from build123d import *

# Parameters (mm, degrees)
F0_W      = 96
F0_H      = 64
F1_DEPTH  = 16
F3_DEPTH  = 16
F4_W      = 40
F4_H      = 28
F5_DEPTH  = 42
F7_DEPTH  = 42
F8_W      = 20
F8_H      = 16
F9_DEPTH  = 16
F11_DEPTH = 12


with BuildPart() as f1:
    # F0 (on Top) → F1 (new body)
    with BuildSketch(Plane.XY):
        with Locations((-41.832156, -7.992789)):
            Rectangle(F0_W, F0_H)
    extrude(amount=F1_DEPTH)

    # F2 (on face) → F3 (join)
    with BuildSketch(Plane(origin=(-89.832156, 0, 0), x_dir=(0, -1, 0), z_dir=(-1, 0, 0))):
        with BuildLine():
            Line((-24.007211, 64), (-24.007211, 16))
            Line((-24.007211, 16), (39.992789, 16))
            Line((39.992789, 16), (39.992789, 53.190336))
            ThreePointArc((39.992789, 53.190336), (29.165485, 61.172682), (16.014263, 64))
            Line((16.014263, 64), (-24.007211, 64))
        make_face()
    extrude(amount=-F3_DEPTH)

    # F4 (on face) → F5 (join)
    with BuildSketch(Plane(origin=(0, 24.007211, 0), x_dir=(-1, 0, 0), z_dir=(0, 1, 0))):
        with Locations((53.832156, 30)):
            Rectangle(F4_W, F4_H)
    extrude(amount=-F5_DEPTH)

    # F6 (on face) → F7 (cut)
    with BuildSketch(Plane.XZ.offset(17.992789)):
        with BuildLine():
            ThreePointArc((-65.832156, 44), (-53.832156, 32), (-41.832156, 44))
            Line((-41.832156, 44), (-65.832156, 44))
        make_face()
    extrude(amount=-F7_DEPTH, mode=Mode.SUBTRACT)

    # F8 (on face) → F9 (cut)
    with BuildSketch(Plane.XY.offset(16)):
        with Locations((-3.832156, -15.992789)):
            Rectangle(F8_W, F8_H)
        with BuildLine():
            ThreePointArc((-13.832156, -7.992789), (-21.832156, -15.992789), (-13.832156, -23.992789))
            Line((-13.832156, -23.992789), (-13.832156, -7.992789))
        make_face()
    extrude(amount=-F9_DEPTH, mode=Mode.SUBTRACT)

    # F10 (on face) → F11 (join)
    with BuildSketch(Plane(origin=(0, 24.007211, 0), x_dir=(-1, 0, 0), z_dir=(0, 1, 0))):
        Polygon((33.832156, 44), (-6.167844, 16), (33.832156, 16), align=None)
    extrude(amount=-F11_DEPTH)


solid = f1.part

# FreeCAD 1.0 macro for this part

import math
import FreeCAD as App
import Part
import Sketcher
from FreeCAD import Vector


def add_polygon(sketch, points):
    """Adds a closed chain of lines whose ends are joined by coincident constraints."""
    first, n = sketch.GeometryCount, len(points)
    for a, b in zip(points, points[1:] + points[:1]):
        sketch.addGeometry(Part.LineSegment(App.Vector(*a, 0), App.Vector(*b, 0)), False)
    for i in range(n):
        sketch.addConstraint(Sketcher.Constraint("Coincident", first + i, 2, first + (i + 1) % n, 1))

doc = App.newDocument("Part")
body = doc.addObject("PartDesign::Body", "Body")

sketch1 = body.newObject("Sketcher::SketchObject", "Sketch")
sketch1.AttachmentSupport = (doc.getObject("XY_Plane"), [""])
sketch1.MapMode = "FlatFace"
add_polygon(sketch1, [(-89.832156, 24.007211), (-89.832156, -39.992789), (6.167844, -39.992789), (6.167844, 24.007211)])
sketch1.addConstraint([
    Sketcher.Constraint("Vertical", 0),
    Sketcher.Constraint("Horizontal", 1),
    Sketcher.Constraint("Vertical", 2),
    Sketcher.Constraint("Horizontal", 3),
    Sketcher.Constraint("DistanceX", 1, 1, 1, 2, 96.0),
    Sketcher.Constraint("DistanceY", 0, 2, 0, 1, 64.0),
    Sketcher.Constraint("DistanceY", 0, 2, -1, 1, 39.992789),
    Sketcher.Constraint("DistanceX", 0, 2, -1, 1, 89.832156),
])
pad1 = body.newObject("PartDesign::Pad", "Pad")
pad1.Profile = sketch1
pad1.Length = 16

sketch2 = body.newObject("Sketcher::SketchObject", "Sketch001")
sketch2.AttachmentSupport = (doc.getObject("YZ_Plane"), [""])
sketch2.MapMode = "FlatFace"
sketch2.AttachmentOffset = App.Placement(Vector(0, 0, -89.832156), App.Rotation())
sketch2.addGeometry([
    Part.LineSegment(Vector(24.007211, 64, 0), Vector(24.007211, 16, 0)),
    Part.LineSegment(Vector(24.007211, 16, 0), Vector(-39.992789, 16, 0)),
    Part.LineSegment(Vector(-39.992789, 16, 0), Vector(-39.992789, 53.190336, 0)),
    Part.ArcOfCircle(Part.Circle(Vector(-16.014263, 31.999998, 0), Vector(0, 0, 1), 32.000002), math.radians(90), math.radians(138.532278)),
    Part.LineSegment(Vector(-16.014263, 64, 0), Vector(24.007211, 64, 0)),
], False)
sketch2.addConstraint([
    Sketcher.Constraint("Coincident", 0, 2, 1, 1),
    Sketcher.Constraint("Coincident", 1, 2, 2, 1),
    Sketcher.Constraint("Coincident", 2, 2, 3, 2),
    Sketcher.Constraint("Tangent", 3, 1, 4, 1),
    Sketcher.Constraint("Coincident", 4, 2, 0, 1),
    Sketcher.Constraint("Vertical", 0),
    Sketcher.Constraint("Horizontal", 1),
    Sketcher.Constraint("Vertical", 2),
    Sketcher.Constraint("Horizontal", 4),
    Sketcher.Constraint("Radius", 3, 32.000002),
    Sketcher.Constraint("DistanceX", 1, 2, 1, 1, 64.0),
    Sketcher.Constraint("DistanceY", 0, 2, 0, 1, 48.0),
    Sketcher.Constraint("DistanceY", -1, 1, 3, 3, 31.999998),
    Sketcher.Constraint("DistanceX", 4, 1, 4, 2, 40.021474),
    Sketcher.Constraint("DistanceX", -1, 1, 0, 2, 24.007211),
])
pad2 = body.newObject("PartDesign::Pad", "Pad001")
pad2.Profile = sketch2
pad2.Length = 16

sketch3 = body.newObject("Sketcher::SketchObject", "Sketch002")
sketch3.AttachmentSupport = (doc.getObject("XZ_Plane"), [""])
sketch3.MapMode = "FlatFace"
sketch3.AttachmentOffset = App.Placement(Vector(0, 0, -24.007211), App.Rotation())
add_polygon(sketch3, [(-33.832156, 44), (-33.832156, 16), (-73.832156, 16), (-73.832156, 44)])
sketch3.addConstraint([
    Sketcher.Constraint("Vertical", 0),
    Sketcher.Constraint("Horizontal", 1),
    Sketcher.Constraint("Vertical", 2),
    Sketcher.Constraint("Horizontal", 3),
    Sketcher.Constraint("DistanceX", 1, 2, 1, 1, 40.0),
    Sketcher.Constraint("DistanceY", 0, 2, 0, 1, 28.0),
    Sketcher.Constraint("DistanceY", -1, 1, 0, 2, 16.0),
    Sketcher.Constraint("DistanceX", 0, 2, -1, 1, 33.832156),
])
pad3 = body.newObject("PartDesign::Pad", "Pad002")
pad3.Profile = sketch3
pad3.Length = 42

sketch4 = body.newObject("Sketcher::SketchObject", "Sketch003")
sketch4.AttachmentSupport = (doc.getObject("XZ_Plane"), [""])
sketch4.MapMode = "FlatFace"
sketch4.AttachmentOffset = App.Placement(Vector(0, 0, 17.992789), App.Rotation())
sketch4.addGeometry([
    Part.ArcOfCircle(Part.Circle(Vector(-53.832156, 44, 0), Vector(0, 0, 1), 12), math.radians(180), math.radians(360)),
    Part.LineSegment(Vector(-41.832156, 44, 0), Vector(-65.832156, 44, 0)),
], False)
sketch4.addConstraint([
    Sketcher.Constraint("Coincident", 0, 1, 1, 2),
    Sketcher.Constraint("Coincident", 1, 1, 0, 2),
    Sketcher.Constraint("Horizontal", 1),
    Sketcher.Constraint("Radius", 0, 12.0),
    Sketcher.Constraint("DistanceY", -1, 1, 0, 3, 44.0),
    Sketcher.Constraint("DistanceY", -1, 1, 0, 1, 44.0),
    Sketcher.Constraint("DistanceX", 0, 3, -1, 1, 53.832156),
])
pocket1 = body.newObject("PartDesign::Pocket", "Pocket")
pocket1.Profile = sketch4
pocket1.Length = 42

sketch5 = body.newObject("Sketcher::SketchObject", "Sketch004")
sketch5.AttachmentSupport = (doc.getObject("XY_Plane"), [""])
sketch5.MapMode = "FlatFace"
sketch5.AttachmentOffset = App.Placement(Vector(0, 0, 16), App.Rotation())
sketch5.addGeometry([
    Part.LineSegment(Vector(-13.832156, -23.992789, 0), Vector(6.167844, -23.992789, 0)),
    Part.LineSegment(Vector(6.167844, -23.992789, 0), Vector(6.167844, -7.992789, 0)),
    Part.LineSegment(Vector(6.167844, -7.992789, 0), Vector(-13.832156, -7.992789, 0)),
    Part.ArcOfCircle(Part.Circle(Vector(-13.832156, -15.992789, 0), Vector(0, 0, 1), 8), math.radians(90), math.radians(270)),
], False)
sketch5.addConstraint([
    Sketcher.Constraint("Coincident", 0, 2, 1, 1),
    Sketcher.Constraint("Coincident", 1, 2, 2, 1),
    Sketcher.Constraint("Tangent", 2, 2, 3, 1),
    Sketcher.Constraint("Tangent", 3, 2, 0, 1),
    Sketcher.Constraint("Horizontal", 0),
    Sketcher.Constraint("Vertical", 1),
    Sketcher.Constraint("Horizontal", 2),
    Sketcher.Constraint("Radius", 3, 8.0),
    Sketcher.Constraint("DistanceX", 0, 1, 0, 2, 20.0),
    Sketcher.Constraint("DistanceY", 3, 3, -1, 1, 15.992789),
    Sketcher.Constraint("DistanceX", 3, 3, -1, 1, 13.832156),
])
pocket2 = body.newObject("PartDesign::Pocket", "Pocket001")
pocket2.Profile = sketch5
pocket2.Length = 16

sketch6 = body.newObject("Sketcher::SketchObject", "Sketch005")
sketch6.AttachmentSupport = (doc.getObject("XZ_Plane"), [""])
sketch6.MapMode = "FlatFace"
sketch6.AttachmentOffset = App.Placement(Vector(0, 0, -24.007211), App.Rotation())
add_polygon(sketch6, [(-33.832156, 44), (6.167844, 16), (-33.832156, 16)])
sketch6.addConstraint([
    Sketcher.Constraint("Horizontal", 1),
    Sketcher.Constraint("Vertical", 2),
    Sketcher.Constraint("DistanceX", 1, 2, 1, 1, 40.0),
    Sketcher.Constraint("DistanceY", 2, 1, 2, 2, 28.0),
    Sketcher.Constraint("DistanceY", -1, 1, 0, 2, 16.0),
    Sketcher.Constraint("DistanceX", -1, 1, 0, 2, 6.167844),
])
pad4 = body.newObject("PartDesign::Pad", "Pad003")
pad4.Profile = sketch6
pad4.Length = 12

doc.recompute()
